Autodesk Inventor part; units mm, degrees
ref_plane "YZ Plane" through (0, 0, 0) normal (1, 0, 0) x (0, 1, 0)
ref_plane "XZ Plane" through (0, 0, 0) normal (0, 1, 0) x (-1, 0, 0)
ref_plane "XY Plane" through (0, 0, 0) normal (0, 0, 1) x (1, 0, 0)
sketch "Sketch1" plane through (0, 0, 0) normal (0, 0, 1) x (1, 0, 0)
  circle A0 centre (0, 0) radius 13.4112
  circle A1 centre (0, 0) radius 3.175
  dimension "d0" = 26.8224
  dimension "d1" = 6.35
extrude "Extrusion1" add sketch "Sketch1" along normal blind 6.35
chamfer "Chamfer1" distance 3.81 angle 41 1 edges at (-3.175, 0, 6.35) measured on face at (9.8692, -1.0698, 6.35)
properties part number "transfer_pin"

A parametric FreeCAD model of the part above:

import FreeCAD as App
import Part
import Sketcher
Q = App.Units.Quantity


def edges_at(feature, points):
    """Names of the edges that pass closest to the given points."""
    edges = feature.Shape.Edges
    near = lambda p: min(range(len(edges)), key=lambda i: edges[i].distToShape(Part.Vertex(*p))[0])
    return sorted({f"Edge{near(p) + 1}" for p in points})

doc = App.newDocument("Part")
body = doc.addObject("PartDesign::Body", "Body")

# Sketch on XY plane
sketch1 = body.newObject("Sketcher::SketchObject", "Sketch")
sketch1.AttachmentSupport = (doc.getObject("XY_Plane"), [""])
sketch1.MapMode = "FlatFace"
sketch1.addGeometry(Part.Circle(App.Vector(0, 0, 0), App.Vector(0, 0, 1), 13.4), False)
sketch1.addGeometry(Part.Circle(App.Vector(0, 0, 0), App.Vector(0, 0, 1), 3.2), False)
sketch1.addConstraint(Sketcher.Constraint("Coincident", 0, 3, -1, 1))
sketch1.addConstraint(Sketcher.Constraint("Coincident", 1, 3, -1, 1))
sketch1.addConstraint(Sketcher.Constraint("Diameter", 1, Q("0.25 in")))
sketch1.addConstraint(Sketcher.Constraint("Diameter", 0, Q("1.056 in")))
pad1 = body.newObject("PartDesign::Pad", "Pad")
pad1.Profile = sketch1
pad1.Length = Q("0.25 in")
doc.recompute()

chamfer = body.newObject("PartDesign::Chamfer", "Chamfer")
chamfer.Base = (pad1, edges_at(pad1, [(-3.175, 0, 6.35)]))
chamfer.ChamferType = "Distance and Angle"
chamfer.Size = Q("0.15 in")
chamfer.Angle = 41
chamfer.FlipDirection = True

doc.recompute()
